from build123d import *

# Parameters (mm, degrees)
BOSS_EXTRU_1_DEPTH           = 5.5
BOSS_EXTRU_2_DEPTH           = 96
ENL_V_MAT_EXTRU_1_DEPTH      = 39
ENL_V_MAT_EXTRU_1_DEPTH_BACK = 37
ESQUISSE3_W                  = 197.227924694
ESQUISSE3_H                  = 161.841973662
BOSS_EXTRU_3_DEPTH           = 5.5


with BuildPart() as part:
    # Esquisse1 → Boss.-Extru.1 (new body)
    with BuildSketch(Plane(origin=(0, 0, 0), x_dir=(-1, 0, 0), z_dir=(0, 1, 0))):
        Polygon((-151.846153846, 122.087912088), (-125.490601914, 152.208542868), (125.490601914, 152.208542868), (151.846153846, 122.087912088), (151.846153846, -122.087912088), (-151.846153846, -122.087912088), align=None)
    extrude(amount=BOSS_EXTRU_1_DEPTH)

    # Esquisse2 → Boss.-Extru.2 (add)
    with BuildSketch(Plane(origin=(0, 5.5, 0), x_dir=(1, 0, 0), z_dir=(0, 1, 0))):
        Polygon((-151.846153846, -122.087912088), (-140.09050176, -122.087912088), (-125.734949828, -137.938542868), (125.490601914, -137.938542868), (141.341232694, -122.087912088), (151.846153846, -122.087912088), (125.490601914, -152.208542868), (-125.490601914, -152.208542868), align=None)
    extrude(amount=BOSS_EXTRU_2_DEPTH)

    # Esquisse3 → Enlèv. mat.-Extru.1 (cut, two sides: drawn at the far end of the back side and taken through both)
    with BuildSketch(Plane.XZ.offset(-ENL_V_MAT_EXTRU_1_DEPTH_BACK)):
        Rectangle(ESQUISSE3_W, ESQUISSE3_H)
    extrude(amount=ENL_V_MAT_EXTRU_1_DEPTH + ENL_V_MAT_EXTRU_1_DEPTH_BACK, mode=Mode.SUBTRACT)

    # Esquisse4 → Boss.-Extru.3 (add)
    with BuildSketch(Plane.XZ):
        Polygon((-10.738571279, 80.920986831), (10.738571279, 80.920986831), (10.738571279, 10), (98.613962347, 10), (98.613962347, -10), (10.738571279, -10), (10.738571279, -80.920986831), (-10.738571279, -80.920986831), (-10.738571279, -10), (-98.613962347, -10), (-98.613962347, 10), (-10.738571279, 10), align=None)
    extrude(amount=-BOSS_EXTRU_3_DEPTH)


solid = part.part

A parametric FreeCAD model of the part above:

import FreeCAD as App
import Part
import Sketcher
Q = App.Units.Quantity


def add_polygon(sketch, points):
    """Adds a closed chain of lines whose ends are joined by coincident constraints."""
    first, n = sketch.GeometryCount, len(points)
    for a, b in zip(points, points[1:] + points[:1]):
        sketch.addGeometry(Part.LineSegment(App.Vector(*a, 0), App.Vector(*b, 0)), False)
    for i in range(n):
        sketch.addConstraint(Sketcher.Constraint("Coincident", first + i, 2, first + (i + 1) % n, 1))

doc = App.newDocument("Part")
body = doc.addObject("PartDesign::Body", "Body")

sketch1 = body.newObject("Sketcher::SketchObject", "Sketch")
sketch1.AttachmentSupport = (doc.getObject("XZ_Plane"), [""])
sketch1.MapMode = "FlatFace"
add_polygon(sketch1, [(125, 152), (152, 122), (152, -122), (-152, -122), (-152, 122), (-125, 152)])
sketch1.addConstraint([
    Sketcher.Constraint("Vertical", 1),
    Sketcher.Constraint("Horizontal", 2),
    Sketcher.Constraint("Vertical", 3),
    Sketcher.Constraint("Horizontal", 5),
    Sketcher.Constraint("Symmetric", 0, 2, 2, 2, -1, 1),
    Sketcher.Constraint("Horizontal", 0, 2, 3, 2),
    Sketcher.Constraint("Equal", 0, 4),
    Sketcher.Constraint("DistanceX", 4, 2, -1, 1, Q("125.490602 mm")),
    Sketcher.Constraint("DistanceX", 2, 2, 2, 1, Q("303.692308 mm")),
    Sketcher.Constraint("DistanceY", 1, 2, 1, 1, Q("244.175824 mm")),
    Sketcher.Constraint("DistanceY", 3, 2, 4, 2, Q("30.120631 mm")),
])
pad1 = body.newObject("PartDesign::Pad", "Pad")
pad1.Profile = sketch1
pad1.Length = 5.5
pad1.Reversed = True

sketch2 = body.newObject("Sketcher::SketchObject", "Sketch001")
sketch2.AttachmentSupport = (doc.getObject("XZ_Plane"), [""])
sketch2.MapMode = "FlatFace"
sketch2.AttachmentOffset = App.Placement(App.Vector(0, 0, -5.5), App.Rotation())
add_polygon(sketch2, [(-140, 122), (-152, 122), (-125, 152), (125, 152), (152, 122), (141, 122), (125, 138), (-126, 138)])
sketch2.addConstraint([
    Sketcher.Constraint("Horizontal", 0),
    Sketcher.Constraint("Horizontal", 2),
    Sketcher.Constraint("Horizontal", 4),
    Sketcher.Constraint("Horizontal", 6),
    Sketcher.Constraint("Symmetric", 0, 2, 3, 2, -2),
    Sketcher.Constraint("Vertical", 2, 2, 5, 2),
    Sketcher.Constraint("Equal", 1, 3),
    Sketcher.Constraint("Angle", 5, Q("135 deg")),
    Sketcher.Constraint("DistanceY", 5, 2, 2, 2, Q("14.27 mm")),
    Sketcher.Constraint("DistanceX", 4, 2, 4, 1, Q("10.504921 mm")),
    Sketcher.Constraint("DistanceX", 6, 2, 6, 1, Q("251.225552 mm")),
    Sketcher.Constraint("DistanceX", 1, 2, -1, 1, Q("125.490602 mm")),
    Sketcher.Constraint("DistanceX", 7, 2, -1, 1, Q("140.090502 mm")),
    Sketcher.Constraint("DistanceX", 0, 2, 0, 1, Q("11.755652 mm")),
    Sketcher.Constraint("DistanceY", -1, 1, 0, 2, Q("122.087912 mm")),
])
pad2 = body.newObject("PartDesign::Pad", "Pad001")
pad2.Profile = sketch2
pad2.Length = 96
pad2.Reversed = True

sketch3 = body.newObject("Sketcher::SketchObject", "Sketch002")
sketch3.AttachmentSupport = (doc.getObject("XZ_Plane"), [""])
sketch3.MapMode = "FlatFace"
add_polygon(sketch3, [(-99, 81), (-99, -81), (99, -81), (99, 81)])
sketch3.addConstraint([
    Sketcher.Constraint("Vertical", 0),
    Sketcher.Constraint("Horizontal", 1),
    Sketcher.Constraint("Vertical", 2),
    Sketcher.Constraint("Horizontal", 3),
    Sketcher.Constraint("Symmetric", 0, 2, 2, 2, -1, 1),
    Sketcher.Constraint("DistanceX", 1, 1, 1, 2, Q("197.227925 mm")),
    Sketcher.Constraint("DistanceY", 0, 2, 0, 1, Q("161.841974 mm")),
])
pocket1 = body.newObject("PartDesign::Pocket", "Pocket")
pocket1.Profile = sketch3
pocket1.Type = "ThroughAll"
pocket1.Midplane = True

sketch4 = body.newObject("Sketcher::SketchObject", "Sketch003")
sketch4.AttachmentSupport = (doc.getObject("XZ_Plane"), [""])
sketch4.MapMode = "FlatFace"
add_polygon(sketch4, [(11, 81), (-11, 81), (-11, 10), (-99, 10), (-99, -10), (-11, -10), (-11, -81), (11, -81), (11, -10), (99, -10), (99, 10), (11, 10)])
sketch4.addConstraint([
    Sketcher.Constraint("Horizontal", 0),
    Sketcher.Constraint("Vertical", 1),
    Sketcher.Constraint("Horizontal", 2),
    Sketcher.Constraint("Vertical", 3),
    Sketcher.Constraint("Horizontal", 4),
    Sketcher.Constraint("Vertical", 5),
    Sketcher.Constraint("Horizontal", 6),
    Sketcher.Constraint("Vertical", 7),
    Sketcher.Constraint("Horizontal", 8),
    Sketcher.Constraint("Vertical", 9),
    Sketcher.Constraint("Horizontal", 10),
    Sketcher.Constraint("Vertical", 11),
    Sketcher.Constraint("Symmetric", 0, 2, 6, 2, -1, 1),
    Sketcher.Constraint("Symmetric", 2, 2, 8, 2, -1, 1),
    Sketcher.Constraint("Symmetric", 4, 2, 10, 2, -1, 1),
    Sketcher.Constraint("Symmetric", 4, 2, 7, 2, -2),
    Sketcher.Constraint("DistanceY", 3, 2, 3, 1, Q("20 mm")),
    Sketcher.Constraint("DistanceX", 2, 2, 2, 1, Q("87.875391 mm")),
    Sketcher.Constraint("DistanceX", 0, 2, 0, 1, Q("21.477143 mm")),
    Sketcher.Constraint("DistanceY", 1, 2, 1, 1, Q("70.920987 mm")),
])
pad3 = body.newObject("PartDesign::Pad", "Pad002")
pad3.Profile = sketch4
pad3.Length = 5.5
pad3.Reversed = True

doc.recompute()
